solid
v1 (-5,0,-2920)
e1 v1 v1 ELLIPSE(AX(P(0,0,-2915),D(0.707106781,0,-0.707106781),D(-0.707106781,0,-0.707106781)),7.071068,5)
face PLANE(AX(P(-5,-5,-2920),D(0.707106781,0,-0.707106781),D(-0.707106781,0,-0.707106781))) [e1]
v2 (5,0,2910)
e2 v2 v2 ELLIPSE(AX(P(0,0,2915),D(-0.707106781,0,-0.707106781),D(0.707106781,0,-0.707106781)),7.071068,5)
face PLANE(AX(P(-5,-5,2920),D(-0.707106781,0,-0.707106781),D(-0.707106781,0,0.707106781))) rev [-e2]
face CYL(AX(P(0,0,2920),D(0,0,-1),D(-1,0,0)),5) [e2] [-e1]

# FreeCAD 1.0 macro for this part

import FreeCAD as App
import Part
import Sketcher
from FreeCAD import Vector
Q = App.Units.Quantity


def add_polygon(sketch, points):
    """Adds a closed chain of lines whose ends are joined by coincident constraints."""
    first, n = sketch.GeometryCount, len(points)
    for a, b in zip(points, points[1:] + points[:1]):
        sketch.addGeometry(Part.LineSegment(App.Vector(*a, 0), App.Vector(*b, 0)), False)
    for i in range(n):
        sketch.addConstraint(Sketcher.Constraint("Coincident", first + i, 2, first + (i + 1) % n, 1))

doc = App.newDocument("Part")
body = doc.addObject("PartDesign::Body", "Body")

# Sketch on XY plane
sketch1 = body.newObject("Sketcher::SketchObject", "Sketch")
sketch1.AttachmentSupport = (doc.getObject("XY_Plane"), [""])
sketch1.MapMode = "FlatFace"
sketch1.addGeometry(Part.Circle(Vector(0, 0, 0), Vector(0, 0, 1), 5), False)
sketch1.addConstraint([
    Sketcher.Constraint("Coincident", 0, 3, -1, 1),
    Sketcher.Constraint("Diameter", 0, Q("10 mm")),
])
pad1 = body.newObject("PartDesign::Pad", "Pad")
pad1.Profile = sketch1
pad1.Length = 5840
pad1.Midplane = True

# Sketch on XZ plane
sketch2 = body.newObject("Sketcher::SketchObject", "Sketch001")
sketch2.AttachmentSupport = (doc.getObject("XZ_Plane"), [""])
sketch2.MapMode = "FlatFace"
add_polygon(sketch2, [(-5, 2920), (5, 2920), (5, 2910)])  # lines 0-2
sketch2.addConstraint([
    Sketcher.Constraint("Horizontal", 0),
    Sketcher.Constraint("Vertical", 1),
    Sketcher.Constraint("Equal", 0, 1),
    Sketcher.Constraint("DistanceX", 0, 1, 0, 2, Q("10 mm")),
    Sketcher.Constraint("DistanceX", -1, 1, 0, 2, Q("5 mm")),
    Sketcher.Constraint("DistanceY", -1, 1, 0, 2, Q("2920 mm")),
])
pocket1 = body.newObject("PartDesign::Pocket", "Pocket")
pocket1.Profile = sketch2
pocket1.Length = 10
pocket1.Midplane = True
doc.recompute()

mirrored = body.newObject("PartDesign::Mirrored", "Mirrored")
mirrored.Originals = [pocket1]
mirrored.MirrorPlane = (doc.getObject("XY_Plane"), [""])
body.Tip = mirrored

doc.recompute()
